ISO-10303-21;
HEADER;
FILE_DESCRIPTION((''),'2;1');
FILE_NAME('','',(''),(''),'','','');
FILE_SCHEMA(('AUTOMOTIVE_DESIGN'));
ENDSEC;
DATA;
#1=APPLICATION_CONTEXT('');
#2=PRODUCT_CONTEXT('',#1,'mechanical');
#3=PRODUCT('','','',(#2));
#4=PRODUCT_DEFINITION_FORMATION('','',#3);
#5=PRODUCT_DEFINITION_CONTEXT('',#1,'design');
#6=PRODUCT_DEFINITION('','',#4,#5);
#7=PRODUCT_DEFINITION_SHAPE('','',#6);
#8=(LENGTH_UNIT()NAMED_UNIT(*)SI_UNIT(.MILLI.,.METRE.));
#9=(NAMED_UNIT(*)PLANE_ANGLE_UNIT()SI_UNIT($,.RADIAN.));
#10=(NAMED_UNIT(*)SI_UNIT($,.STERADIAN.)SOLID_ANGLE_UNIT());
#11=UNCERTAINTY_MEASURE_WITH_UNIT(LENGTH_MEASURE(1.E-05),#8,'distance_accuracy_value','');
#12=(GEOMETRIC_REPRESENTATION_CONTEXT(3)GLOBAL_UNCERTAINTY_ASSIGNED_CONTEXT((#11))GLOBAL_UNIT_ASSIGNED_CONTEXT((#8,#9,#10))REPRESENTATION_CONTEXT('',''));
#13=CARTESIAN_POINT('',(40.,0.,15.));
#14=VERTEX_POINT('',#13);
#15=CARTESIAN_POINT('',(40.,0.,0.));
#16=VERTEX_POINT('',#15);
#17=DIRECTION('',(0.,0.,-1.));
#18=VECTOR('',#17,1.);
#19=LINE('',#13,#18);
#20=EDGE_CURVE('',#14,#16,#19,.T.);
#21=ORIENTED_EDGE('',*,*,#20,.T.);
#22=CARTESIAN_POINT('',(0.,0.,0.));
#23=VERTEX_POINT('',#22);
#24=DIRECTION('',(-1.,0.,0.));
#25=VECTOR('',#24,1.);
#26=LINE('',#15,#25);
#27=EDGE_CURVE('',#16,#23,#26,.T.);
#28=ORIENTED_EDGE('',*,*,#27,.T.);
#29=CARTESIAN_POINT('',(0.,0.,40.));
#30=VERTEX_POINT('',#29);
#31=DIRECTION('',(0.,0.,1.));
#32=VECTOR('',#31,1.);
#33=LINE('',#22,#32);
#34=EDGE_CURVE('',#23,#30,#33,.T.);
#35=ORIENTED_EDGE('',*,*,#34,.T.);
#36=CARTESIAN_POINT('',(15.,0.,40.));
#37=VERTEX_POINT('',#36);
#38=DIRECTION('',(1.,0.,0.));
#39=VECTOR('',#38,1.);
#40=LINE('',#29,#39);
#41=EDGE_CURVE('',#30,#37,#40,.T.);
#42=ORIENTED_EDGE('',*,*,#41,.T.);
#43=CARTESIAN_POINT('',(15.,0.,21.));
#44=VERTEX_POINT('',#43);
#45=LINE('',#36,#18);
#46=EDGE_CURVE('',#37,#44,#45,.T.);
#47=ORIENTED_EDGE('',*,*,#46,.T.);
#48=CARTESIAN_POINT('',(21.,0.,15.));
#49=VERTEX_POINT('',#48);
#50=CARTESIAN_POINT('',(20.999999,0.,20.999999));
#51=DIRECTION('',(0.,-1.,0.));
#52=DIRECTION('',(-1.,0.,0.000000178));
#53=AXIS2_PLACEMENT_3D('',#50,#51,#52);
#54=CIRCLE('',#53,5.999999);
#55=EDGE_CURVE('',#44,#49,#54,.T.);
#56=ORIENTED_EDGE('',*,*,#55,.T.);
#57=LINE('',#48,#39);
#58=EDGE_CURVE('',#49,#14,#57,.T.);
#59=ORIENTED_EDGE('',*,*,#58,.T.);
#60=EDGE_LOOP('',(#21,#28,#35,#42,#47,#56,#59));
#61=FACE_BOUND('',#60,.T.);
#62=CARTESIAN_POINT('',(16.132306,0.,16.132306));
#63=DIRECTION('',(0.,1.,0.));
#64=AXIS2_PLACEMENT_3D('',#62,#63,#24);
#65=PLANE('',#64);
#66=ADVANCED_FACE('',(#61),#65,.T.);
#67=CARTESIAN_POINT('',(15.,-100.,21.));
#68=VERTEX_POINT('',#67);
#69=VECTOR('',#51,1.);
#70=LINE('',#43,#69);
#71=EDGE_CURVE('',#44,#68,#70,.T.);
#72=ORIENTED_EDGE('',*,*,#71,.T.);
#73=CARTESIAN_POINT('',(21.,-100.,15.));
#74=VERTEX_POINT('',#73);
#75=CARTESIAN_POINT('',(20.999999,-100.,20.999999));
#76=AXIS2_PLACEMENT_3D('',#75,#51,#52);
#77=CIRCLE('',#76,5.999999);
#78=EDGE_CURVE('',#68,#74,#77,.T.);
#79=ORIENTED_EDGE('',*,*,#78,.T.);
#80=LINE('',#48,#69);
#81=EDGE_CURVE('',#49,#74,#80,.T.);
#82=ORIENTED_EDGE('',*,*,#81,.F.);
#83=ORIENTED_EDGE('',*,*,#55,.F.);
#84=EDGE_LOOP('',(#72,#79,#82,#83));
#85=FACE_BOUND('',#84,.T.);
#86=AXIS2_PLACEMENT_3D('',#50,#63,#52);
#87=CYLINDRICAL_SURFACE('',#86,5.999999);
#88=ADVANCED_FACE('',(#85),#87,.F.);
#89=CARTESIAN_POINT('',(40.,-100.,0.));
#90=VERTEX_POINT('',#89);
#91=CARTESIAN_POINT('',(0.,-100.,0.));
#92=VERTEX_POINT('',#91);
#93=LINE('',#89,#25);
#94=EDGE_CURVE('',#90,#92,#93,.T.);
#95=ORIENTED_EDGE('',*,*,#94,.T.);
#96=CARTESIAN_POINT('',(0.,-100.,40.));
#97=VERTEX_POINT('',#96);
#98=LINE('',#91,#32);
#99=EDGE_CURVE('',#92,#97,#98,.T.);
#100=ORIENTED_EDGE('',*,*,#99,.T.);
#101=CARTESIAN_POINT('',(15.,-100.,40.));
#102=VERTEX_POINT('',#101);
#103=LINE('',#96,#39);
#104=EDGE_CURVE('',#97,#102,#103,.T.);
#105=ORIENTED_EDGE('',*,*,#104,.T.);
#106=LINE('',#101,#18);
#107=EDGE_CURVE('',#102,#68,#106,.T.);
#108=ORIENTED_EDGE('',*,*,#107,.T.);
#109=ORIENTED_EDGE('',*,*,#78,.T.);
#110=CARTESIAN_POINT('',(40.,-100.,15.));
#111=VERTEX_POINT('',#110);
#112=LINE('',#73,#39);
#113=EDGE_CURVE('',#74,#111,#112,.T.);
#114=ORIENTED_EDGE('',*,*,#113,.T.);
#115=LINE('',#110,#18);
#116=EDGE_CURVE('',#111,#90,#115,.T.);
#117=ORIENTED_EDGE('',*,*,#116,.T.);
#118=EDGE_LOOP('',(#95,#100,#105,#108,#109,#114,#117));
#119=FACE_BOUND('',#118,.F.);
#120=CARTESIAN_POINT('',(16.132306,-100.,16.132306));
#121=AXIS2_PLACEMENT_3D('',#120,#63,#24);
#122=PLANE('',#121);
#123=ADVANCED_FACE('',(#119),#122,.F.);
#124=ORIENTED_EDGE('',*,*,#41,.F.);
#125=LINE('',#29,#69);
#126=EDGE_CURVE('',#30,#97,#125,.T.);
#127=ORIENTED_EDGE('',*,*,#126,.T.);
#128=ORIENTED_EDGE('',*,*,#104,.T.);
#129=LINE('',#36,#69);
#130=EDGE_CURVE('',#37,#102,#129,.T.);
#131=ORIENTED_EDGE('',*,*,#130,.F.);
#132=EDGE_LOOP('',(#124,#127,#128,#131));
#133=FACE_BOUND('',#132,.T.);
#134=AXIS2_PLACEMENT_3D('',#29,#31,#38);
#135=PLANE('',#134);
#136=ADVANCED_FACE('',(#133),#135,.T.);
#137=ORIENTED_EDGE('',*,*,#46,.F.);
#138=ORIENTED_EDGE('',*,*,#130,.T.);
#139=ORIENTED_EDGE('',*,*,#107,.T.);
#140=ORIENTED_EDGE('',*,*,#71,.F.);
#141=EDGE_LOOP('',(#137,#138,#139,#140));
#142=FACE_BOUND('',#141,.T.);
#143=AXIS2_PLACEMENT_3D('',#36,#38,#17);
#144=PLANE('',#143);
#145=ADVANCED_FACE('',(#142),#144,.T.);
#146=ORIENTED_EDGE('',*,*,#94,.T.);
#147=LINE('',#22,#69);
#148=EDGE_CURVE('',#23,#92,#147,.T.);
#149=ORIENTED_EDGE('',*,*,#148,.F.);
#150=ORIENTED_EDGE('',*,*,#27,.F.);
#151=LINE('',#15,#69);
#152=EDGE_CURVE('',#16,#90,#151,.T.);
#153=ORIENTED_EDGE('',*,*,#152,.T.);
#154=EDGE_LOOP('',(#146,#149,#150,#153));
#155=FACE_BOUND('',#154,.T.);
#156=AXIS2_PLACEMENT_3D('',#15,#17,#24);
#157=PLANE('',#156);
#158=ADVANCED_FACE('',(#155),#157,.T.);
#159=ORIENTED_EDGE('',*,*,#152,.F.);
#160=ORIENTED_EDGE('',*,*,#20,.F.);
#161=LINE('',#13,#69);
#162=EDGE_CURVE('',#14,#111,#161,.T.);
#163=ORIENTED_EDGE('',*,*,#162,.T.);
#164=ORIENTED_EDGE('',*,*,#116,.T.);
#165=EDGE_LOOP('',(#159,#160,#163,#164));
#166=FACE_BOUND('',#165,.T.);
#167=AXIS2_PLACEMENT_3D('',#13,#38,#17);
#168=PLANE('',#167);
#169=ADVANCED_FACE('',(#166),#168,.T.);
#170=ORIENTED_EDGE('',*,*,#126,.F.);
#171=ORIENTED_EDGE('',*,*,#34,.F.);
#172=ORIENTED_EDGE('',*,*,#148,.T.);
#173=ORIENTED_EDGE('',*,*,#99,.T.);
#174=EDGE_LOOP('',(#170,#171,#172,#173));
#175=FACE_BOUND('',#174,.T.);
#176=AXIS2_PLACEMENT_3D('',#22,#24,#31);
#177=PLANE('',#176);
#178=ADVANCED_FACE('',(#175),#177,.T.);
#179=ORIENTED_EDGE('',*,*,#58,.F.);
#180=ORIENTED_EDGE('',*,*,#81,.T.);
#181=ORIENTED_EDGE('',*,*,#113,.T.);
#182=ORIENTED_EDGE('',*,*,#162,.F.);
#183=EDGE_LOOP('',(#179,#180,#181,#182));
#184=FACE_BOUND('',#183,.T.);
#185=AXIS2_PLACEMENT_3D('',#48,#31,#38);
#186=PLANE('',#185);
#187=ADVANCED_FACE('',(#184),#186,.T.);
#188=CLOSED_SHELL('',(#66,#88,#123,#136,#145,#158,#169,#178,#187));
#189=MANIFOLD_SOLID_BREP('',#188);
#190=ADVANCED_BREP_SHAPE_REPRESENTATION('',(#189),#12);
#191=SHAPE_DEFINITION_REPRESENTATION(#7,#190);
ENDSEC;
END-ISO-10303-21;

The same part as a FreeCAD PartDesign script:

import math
import FreeCAD as App
import Part
import Sketcher

V = App.Vector

doc = App.newDocument("Part")
body = doc.addObject("PartDesign::Body", "Body")

# Sketch on XZ plane
sketch1 = body.newObject("Sketcher::SketchObject", "Sketch")
sketch1.AttachmentSupport = (doc.getObject("XZ_Plane"), [""])
sketch1.MapMode = "FlatFace"
sketch1.addGeometry([
    Part.LineSegment(V(0, 40, 0), V(0, 0, 0)),  # 0
    Part.LineSegment(V(0, 0, 0), V(40, 0, 0)),  # 1
    Part.LineSegment(V(40, 0, 0), V(40, 15, 0)),  # 2
    Part.LineSegment(V(40, 15, 0), V(21, 15, 0)),  # 3
    Part.ArcOfCircle(Part.Circle(V(21, 21, 0), V(0, 0, 1), 6), math.radians(180), math.radians(270)),  # 4
    Part.LineSegment(V(15, 21, 0), V(15, 40, 0)),  # 5
    Part.LineSegment(V(15, 40, 0), V(0, 40, 0)),  # 6
], False)
sketch1.addConstraint([
    Sketcher.Constraint("Coincident", 0, 2, 1, 1),
    Sketcher.Constraint("Coincident", 1, 2, 2, 1),
    Sketcher.Constraint("Coincident", 2, 2, 3, 1),
    Sketcher.Constraint("Tangent", 3, 2, 4, 2),
    Sketcher.Constraint("Tangent", 4, 1, 5, 1),
    Sketcher.Constraint("Coincident", 5, 2, 6, 1),
    Sketcher.Constraint("Coincident", 6, 2, 0, 1),
    Sketcher.Constraint("Vertical", 0),
    Sketcher.Constraint("Horizontal", 1),
    Sketcher.Constraint("Vertical", 2),
    Sketcher.Constraint("Horizontal", 3),
    Sketcher.Constraint("Vertical", 5),
    Sketcher.Constraint("Horizontal", 6),
    Sketcher.Constraint("Coincident", 0, 2, -1, 1),
    Sketcher.Constraint("Equal", 1, 0),
    Sketcher.Constraint("Equal", 6, 2),
    Sketcher.Constraint("Radius", 4, 5.999999),
    Sketcher.Constraint("DistanceX", 1, 1, 1, 2, 40.0),
    Sketcher.Constraint("DistanceX", 3, 2, 3, 1, 19.0),
])
pad1 = body.newObject("PartDesign::Pad", "Pad")
pad1.Profile = sketch1
pad1.Length = 100

doc.recompute()
